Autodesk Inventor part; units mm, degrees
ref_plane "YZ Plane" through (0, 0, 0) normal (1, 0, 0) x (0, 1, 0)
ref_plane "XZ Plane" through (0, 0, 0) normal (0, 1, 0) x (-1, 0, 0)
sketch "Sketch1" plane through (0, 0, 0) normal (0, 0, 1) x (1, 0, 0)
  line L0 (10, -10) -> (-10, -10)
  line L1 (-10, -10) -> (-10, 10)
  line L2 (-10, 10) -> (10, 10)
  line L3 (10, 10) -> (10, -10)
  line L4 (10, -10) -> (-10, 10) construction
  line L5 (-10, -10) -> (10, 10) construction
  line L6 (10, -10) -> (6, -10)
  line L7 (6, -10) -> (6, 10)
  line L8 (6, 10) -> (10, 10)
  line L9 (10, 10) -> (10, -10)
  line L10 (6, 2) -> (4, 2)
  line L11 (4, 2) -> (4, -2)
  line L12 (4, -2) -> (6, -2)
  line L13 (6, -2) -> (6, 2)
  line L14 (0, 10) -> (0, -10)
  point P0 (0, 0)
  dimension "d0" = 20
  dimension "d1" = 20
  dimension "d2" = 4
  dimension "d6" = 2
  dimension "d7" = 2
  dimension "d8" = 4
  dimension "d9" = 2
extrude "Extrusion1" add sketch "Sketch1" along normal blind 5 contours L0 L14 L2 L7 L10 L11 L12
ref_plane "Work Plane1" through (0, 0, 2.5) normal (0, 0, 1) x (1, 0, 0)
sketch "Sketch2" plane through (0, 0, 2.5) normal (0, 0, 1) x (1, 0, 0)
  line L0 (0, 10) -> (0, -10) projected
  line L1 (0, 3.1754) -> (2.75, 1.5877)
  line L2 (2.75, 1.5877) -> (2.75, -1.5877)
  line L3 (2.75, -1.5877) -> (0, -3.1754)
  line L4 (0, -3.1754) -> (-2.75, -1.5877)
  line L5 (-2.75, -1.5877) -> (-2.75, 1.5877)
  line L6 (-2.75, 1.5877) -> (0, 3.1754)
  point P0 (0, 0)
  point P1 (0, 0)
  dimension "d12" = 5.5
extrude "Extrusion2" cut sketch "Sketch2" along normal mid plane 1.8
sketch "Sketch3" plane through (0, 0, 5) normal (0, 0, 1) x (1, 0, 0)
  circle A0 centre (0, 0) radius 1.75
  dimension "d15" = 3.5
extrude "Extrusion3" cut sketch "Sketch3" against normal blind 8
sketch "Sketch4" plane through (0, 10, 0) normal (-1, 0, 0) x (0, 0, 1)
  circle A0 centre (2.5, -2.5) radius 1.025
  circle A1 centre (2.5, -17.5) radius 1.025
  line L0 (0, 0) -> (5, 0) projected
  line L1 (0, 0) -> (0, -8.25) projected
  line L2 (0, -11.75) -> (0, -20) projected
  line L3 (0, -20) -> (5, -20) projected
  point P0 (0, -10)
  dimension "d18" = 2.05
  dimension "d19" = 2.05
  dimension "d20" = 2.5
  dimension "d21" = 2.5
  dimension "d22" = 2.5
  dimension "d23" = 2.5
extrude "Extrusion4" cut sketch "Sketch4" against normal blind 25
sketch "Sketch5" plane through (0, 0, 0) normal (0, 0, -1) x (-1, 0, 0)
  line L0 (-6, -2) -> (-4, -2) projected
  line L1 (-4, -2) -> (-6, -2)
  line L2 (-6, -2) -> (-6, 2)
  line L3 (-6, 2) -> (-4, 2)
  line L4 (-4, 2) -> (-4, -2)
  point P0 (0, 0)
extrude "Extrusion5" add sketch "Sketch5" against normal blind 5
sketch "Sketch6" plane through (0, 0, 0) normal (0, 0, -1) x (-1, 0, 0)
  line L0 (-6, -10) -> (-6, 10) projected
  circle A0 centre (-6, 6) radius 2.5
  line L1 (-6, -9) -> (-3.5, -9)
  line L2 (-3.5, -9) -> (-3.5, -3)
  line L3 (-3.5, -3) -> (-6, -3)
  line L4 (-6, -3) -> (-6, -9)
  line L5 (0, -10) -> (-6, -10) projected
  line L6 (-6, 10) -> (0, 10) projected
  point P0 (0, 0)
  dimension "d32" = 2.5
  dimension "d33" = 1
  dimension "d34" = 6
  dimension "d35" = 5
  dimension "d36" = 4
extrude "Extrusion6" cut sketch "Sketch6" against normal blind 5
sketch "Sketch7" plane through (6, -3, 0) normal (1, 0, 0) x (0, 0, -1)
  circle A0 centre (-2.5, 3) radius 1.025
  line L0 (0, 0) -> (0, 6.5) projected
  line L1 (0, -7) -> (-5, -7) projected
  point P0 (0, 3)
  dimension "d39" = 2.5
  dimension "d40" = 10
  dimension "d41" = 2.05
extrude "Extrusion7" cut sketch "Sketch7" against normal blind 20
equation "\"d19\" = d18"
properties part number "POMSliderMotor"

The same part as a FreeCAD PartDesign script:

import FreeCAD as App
import Part
import Sketcher
from FreeCAD import Vector
Q = App.Units.Quantity


def add_polygon(sketch, points):
    """Adds a closed chain of lines whose ends are joined by coincident constraints."""
    first, n = sketch.GeometryCount, len(points)
    for a, b in zip(points, points[1:] + points[:1]):
        sketch.addGeometry(Part.LineSegment(App.Vector(*a, 0), App.Vector(*b, 0)), False)
    for i in range(n):
        sketch.addConstraint(Sketcher.Constraint("Coincident", first + i, 2, first + (i + 1) % n, 1))

doc = App.newDocument("Part")
body = doc.addObject("PartDesign::Body", "Body")

# Sketch on XY plane
sketch1 = body.newObject("Sketcher::SketchObject", "Sketch")
sketch1.AttachmentSupport = (doc.getObject("XY_Plane"), [""])
sketch1.MapMode = "FlatFace"
add_polygon(sketch1, [(0, -10), (6, -10), (6, -2), (4, -2), (4, 2), (6, 2), (6, 10), (0, 10)])  # lines 0-7
sketch1.addConstraint([
    Sketcher.Constraint("Horizontal", 0),
    Sketcher.Constraint("Vertical", 1),
    Sketcher.Constraint("Horizontal", 2),
    Sketcher.Constraint("Vertical", 3),
    Sketcher.Constraint("Horizontal", 4),
    Sketcher.Constraint("Vertical", 5),
    Sketcher.Constraint("Horizontal", 6),
    Sketcher.Constraint("Vertical", 7),
    Sketcher.Constraint("Symmetric", 6, 2, 7, 2, -1, 1),
    Sketcher.Constraint("Symmetric", 1, 2, 4, 2, -1),
    Sketcher.Constraint("DistanceX", 2, 2, 2, 1, Q("2 mm")),
    Sketcher.Constraint("DistanceY", 3, 1, 3, 2, Q("4 mm")),
    Sketcher.Constraint("DistanceY", 7, 2, 7, 1, Q("20 mm")),
    Sketcher.Constraint("DistanceX", -1, 1, 2, 2, Q("4 mm")),
])
pad1 = body.newObject("PartDesign::Pad", "Pad")
pad1.Profile = sketch1
pad1.Length = 5

# Sketch on XY plane
sketch2 = body.newObject("Sketcher::SketchObject", "Sketch001")
sketch2.AttachmentSupport = (doc.getObject("XY_Plane"), [""])
sketch2.MapMode = "FlatFace"
sketch2.AttachmentOffset = App.Placement(Vector(0, 0, 2.5), App.Rotation())
add_polygon(sketch2, [(2.8, 1.6), (0, 3.2), (-2.8, 1.6), (-2.8, -1.6), (0, -3.2), (2.8, -1.6)])  # lines 0-5
sketch2.addConstraint([
    Sketcher.Constraint("Vertical", 2),
    Sketcher.Constraint("Vertical", 5),
    Sketcher.Constraint("Symmetric", 0, 2, 3, 2, -1, 1),
    Sketcher.Constraint("Symmetric", 1, 2, 4, 2, -1, 1),
    Sketcher.Constraint("PointOnObject", 0, 2, -2),
    Sketcher.Constraint("Parallel", 0, 3),
    Sketcher.Constraint("Horizontal", 2, 2, 4, 2),
    Sketcher.Constraint("DistanceX", 2, 2, 4, 2, Q("5.5 mm")),
    Sketcher.Constraint("Angle", 0, Q("150.0002 deg")),
    Sketcher.Constraint("DistanceY", 2, 2, 2, 1, Q("3.1754 mm")),
])
pocket1 = body.newObject("PartDesign::Pocket", "Pocket")
pocket1.Profile = sketch2
pocket1.Length = 1.8
pocket1.Midplane = True

# Sketch on XY plane
sketch3 = body.newObject("Sketcher::SketchObject", "Sketch002")
sketch3.AttachmentSupport = (doc.getObject("XY_Plane"), [""])
sketch3.MapMode = "FlatFace"
sketch3.AttachmentOffset = App.Placement(Vector(0, 0, 5), App.Rotation())
sketch3.addGeometry(Part.Circle(Vector(0, 0, 0), Vector(0, 0, 1), 1.8), False)
sketch3.addConstraint([
    Sketcher.Constraint("Coincident", 0, 3, -1, 1),
    Sketcher.Constraint("Diameter", 0, Q("3.5 mm")),
])
pocket2 = body.newObject("PartDesign::Pocket", "Pocket001")
pocket2.Profile = sketch3
pocket2.Length = 8

# Sketch on YZ plane
sketch4 = body.newObject("Sketcher::SketchObject", "Sketch003")
sketch4.AttachmentSupport = (doc.getObject("YZ_Plane"), [""])
sketch4.MapMode = "FlatFace"
sketch4.addGeometry([
    Part.Circle(Vector(7.5, 2.5, 0), Vector(0, 0, 1), 1),
    Part.Circle(Vector(-7.5, 2.5, 0), Vector(0, 0, 1), 1),
], False)
sketch4.addConstraint([
    Sketcher.Constraint("Equal", 0, 1),
    Sketcher.Constraint("Symmetric", 0, 3, 1, 3, -2),
    Sketcher.Constraint("Diameter", 0, Q("2.05 mm")),
    Sketcher.Constraint("DistanceY", -1, 1, 0, 3, Q("2.5 mm")),
    Sketcher.Constraint("DistanceX", 1, 3, 0, 3, Q("15 mm")),
])
pocket3 = body.newObject("PartDesign::Pocket", "Pocket002")
pocket3.Profile = sketch4
pocket3.Length = 25
pocket3.Reversed = True

# Sketch on XY plane
sketch5 = body.newObject("Sketcher::SketchObject", "Sketch004")
sketch5.AttachmentSupport = (doc.getObject("XY_Plane"), [""])
sketch5.MapMode = "FlatFace"
add_polygon(sketch5, [(6, 2), (6, -2), (4, -2), (4, 2)])  # lines 0-3
sketch5.addConstraint([
    Sketcher.Constraint("Vertical", 0),
    Sketcher.Constraint("Horizontal", 1),
    Sketcher.Constraint("Vertical", 2),
    Sketcher.Constraint("Horizontal", 3),
    Sketcher.Constraint("DistanceX", 1, 2, 1, 1, Q("2 mm")),
    Sketcher.Constraint("DistanceY", 0, 2, 0, 1, Q("4 mm")),
    Sketcher.Constraint("DistanceX", -1, 1, 0, 2, Q("6 mm")),
    Sketcher.Constraint("DistanceY", 0, 2, -1, 1, Q("2 mm")),
])
pad2 = body.newObject("PartDesign::Pad", "Pad001")
pad2.Profile = sketch5
pad2.Length = 5

# Sketch on XY plane
sketch6 = body.newObject("Sketcher::SketchObject", "Sketch005")
sketch6.AttachmentSupport = (doc.getObject("XY_Plane"), [""])
sketch6.MapMode = "FlatFace"
sketch6.addGeometry(Part.Circle(Vector(6, 6, 0), Vector(0, 0, 1), 2.5), False)  # 0
add_polygon(sketch6, [(6, -3), (6, -9), (3.5, -9), (3.5, -3)])  # lines 1-4
sketch6.addConstraint([
    Sketcher.Constraint("Vertical", 1),
    Sketcher.Constraint("Horizontal", 2),
    Sketcher.Constraint("Vertical", 3),
    Sketcher.Constraint("Horizontal", 4),
    Sketcher.Constraint("Vertical", 0, 3, 1, 2),
    Sketcher.Constraint("Diameter", 0, Q("5 mm")),
    Sketcher.Constraint("DistanceY", 1, 2, 1, 1, Q("6 mm")),
    Sketcher.Constraint("DistanceX", 2, 2, 2, 1, Q("2.5 mm")),
    Sketcher.Constraint("DistanceX", -1, 1, 0, 3, Q("6 mm")),
    Sketcher.Constraint("DistanceY", -1, 1, 0, 3, Q("6 mm")),
    Sketcher.Constraint("DistanceY", 1, 2, -1, 1, Q("9 mm")),
])
pocket4 = body.newObject("PartDesign::Pocket", "Pocket003")
pocket4.Profile = sketch6
pocket4.Length = 5
pocket4.Reversed = True

# Sketch on YZ plane
sketch7 = body.newObject("Sketcher::SketchObject", "Sketch006")
sketch7.AttachmentSupport = (doc.getObject("YZ_Plane"), [""])
sketch7.MapMode = "FlatFace"
sketch7.AttachmentOffset = App.Placement(Vector(0, 0, 6), App.Rotation())
sketch7.addGeometry(Part.Circle(Vector(0, 2.5, 0), Vector(0, 0, 1), 1), False)
sketch7.addConstraint([
    Sketcher.Constraint("PointOnObject", 0, 3, -2),
    Sketcher.Constraint("Diameter", 0, Q("2.05 mm")),
    Sketcher.Constraint("DistanceY", -1, 1, 0, 3, Q("2.5 mm")),
])
pocket5 = body.newObject("PartDesign::Pocket", "Pocket004")
pocket5.Profile = sketch7
pocket5.Length = 20

doc.recompute()
